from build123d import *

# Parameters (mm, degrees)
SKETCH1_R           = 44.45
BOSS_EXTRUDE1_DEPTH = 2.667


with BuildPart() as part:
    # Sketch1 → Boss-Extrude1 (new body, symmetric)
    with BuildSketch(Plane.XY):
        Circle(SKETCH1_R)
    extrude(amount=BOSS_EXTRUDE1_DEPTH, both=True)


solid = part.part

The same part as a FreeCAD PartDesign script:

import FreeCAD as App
import Part
import Sketcher

V = App.Vector
Q = App.Units.Quantity

doc = App.newDocument("Part")
body = doc.addObject("PartDesign::Body", "Body")

# Sketch on XY plane
sketch1 = body.newObject("Sketcher::SketchObject", "Sketch")
sketch1.AttachmentSupport = (doc.getObject("XY_Plane"), [""])
sketch1.MapMode = "FlatFace"
sketch1.addGeometry(Part.Circle(V(0, 0, 0), V(0, 0, 1), 44), False)
sketch1.addConstraint([
    Sketcher.Constraint("Coincident", 0, 3, -1, 1),
    Sketcher.Constraint("Diameter", 0, Q("3.5 in")),
])
pad1 = body.newObject("PartDesign::Pad", "Pad")
pad1.Profile = sketch1
pad1.Length = Q("0.21 in")
pad1.Midplane = True

doc.recompute()
